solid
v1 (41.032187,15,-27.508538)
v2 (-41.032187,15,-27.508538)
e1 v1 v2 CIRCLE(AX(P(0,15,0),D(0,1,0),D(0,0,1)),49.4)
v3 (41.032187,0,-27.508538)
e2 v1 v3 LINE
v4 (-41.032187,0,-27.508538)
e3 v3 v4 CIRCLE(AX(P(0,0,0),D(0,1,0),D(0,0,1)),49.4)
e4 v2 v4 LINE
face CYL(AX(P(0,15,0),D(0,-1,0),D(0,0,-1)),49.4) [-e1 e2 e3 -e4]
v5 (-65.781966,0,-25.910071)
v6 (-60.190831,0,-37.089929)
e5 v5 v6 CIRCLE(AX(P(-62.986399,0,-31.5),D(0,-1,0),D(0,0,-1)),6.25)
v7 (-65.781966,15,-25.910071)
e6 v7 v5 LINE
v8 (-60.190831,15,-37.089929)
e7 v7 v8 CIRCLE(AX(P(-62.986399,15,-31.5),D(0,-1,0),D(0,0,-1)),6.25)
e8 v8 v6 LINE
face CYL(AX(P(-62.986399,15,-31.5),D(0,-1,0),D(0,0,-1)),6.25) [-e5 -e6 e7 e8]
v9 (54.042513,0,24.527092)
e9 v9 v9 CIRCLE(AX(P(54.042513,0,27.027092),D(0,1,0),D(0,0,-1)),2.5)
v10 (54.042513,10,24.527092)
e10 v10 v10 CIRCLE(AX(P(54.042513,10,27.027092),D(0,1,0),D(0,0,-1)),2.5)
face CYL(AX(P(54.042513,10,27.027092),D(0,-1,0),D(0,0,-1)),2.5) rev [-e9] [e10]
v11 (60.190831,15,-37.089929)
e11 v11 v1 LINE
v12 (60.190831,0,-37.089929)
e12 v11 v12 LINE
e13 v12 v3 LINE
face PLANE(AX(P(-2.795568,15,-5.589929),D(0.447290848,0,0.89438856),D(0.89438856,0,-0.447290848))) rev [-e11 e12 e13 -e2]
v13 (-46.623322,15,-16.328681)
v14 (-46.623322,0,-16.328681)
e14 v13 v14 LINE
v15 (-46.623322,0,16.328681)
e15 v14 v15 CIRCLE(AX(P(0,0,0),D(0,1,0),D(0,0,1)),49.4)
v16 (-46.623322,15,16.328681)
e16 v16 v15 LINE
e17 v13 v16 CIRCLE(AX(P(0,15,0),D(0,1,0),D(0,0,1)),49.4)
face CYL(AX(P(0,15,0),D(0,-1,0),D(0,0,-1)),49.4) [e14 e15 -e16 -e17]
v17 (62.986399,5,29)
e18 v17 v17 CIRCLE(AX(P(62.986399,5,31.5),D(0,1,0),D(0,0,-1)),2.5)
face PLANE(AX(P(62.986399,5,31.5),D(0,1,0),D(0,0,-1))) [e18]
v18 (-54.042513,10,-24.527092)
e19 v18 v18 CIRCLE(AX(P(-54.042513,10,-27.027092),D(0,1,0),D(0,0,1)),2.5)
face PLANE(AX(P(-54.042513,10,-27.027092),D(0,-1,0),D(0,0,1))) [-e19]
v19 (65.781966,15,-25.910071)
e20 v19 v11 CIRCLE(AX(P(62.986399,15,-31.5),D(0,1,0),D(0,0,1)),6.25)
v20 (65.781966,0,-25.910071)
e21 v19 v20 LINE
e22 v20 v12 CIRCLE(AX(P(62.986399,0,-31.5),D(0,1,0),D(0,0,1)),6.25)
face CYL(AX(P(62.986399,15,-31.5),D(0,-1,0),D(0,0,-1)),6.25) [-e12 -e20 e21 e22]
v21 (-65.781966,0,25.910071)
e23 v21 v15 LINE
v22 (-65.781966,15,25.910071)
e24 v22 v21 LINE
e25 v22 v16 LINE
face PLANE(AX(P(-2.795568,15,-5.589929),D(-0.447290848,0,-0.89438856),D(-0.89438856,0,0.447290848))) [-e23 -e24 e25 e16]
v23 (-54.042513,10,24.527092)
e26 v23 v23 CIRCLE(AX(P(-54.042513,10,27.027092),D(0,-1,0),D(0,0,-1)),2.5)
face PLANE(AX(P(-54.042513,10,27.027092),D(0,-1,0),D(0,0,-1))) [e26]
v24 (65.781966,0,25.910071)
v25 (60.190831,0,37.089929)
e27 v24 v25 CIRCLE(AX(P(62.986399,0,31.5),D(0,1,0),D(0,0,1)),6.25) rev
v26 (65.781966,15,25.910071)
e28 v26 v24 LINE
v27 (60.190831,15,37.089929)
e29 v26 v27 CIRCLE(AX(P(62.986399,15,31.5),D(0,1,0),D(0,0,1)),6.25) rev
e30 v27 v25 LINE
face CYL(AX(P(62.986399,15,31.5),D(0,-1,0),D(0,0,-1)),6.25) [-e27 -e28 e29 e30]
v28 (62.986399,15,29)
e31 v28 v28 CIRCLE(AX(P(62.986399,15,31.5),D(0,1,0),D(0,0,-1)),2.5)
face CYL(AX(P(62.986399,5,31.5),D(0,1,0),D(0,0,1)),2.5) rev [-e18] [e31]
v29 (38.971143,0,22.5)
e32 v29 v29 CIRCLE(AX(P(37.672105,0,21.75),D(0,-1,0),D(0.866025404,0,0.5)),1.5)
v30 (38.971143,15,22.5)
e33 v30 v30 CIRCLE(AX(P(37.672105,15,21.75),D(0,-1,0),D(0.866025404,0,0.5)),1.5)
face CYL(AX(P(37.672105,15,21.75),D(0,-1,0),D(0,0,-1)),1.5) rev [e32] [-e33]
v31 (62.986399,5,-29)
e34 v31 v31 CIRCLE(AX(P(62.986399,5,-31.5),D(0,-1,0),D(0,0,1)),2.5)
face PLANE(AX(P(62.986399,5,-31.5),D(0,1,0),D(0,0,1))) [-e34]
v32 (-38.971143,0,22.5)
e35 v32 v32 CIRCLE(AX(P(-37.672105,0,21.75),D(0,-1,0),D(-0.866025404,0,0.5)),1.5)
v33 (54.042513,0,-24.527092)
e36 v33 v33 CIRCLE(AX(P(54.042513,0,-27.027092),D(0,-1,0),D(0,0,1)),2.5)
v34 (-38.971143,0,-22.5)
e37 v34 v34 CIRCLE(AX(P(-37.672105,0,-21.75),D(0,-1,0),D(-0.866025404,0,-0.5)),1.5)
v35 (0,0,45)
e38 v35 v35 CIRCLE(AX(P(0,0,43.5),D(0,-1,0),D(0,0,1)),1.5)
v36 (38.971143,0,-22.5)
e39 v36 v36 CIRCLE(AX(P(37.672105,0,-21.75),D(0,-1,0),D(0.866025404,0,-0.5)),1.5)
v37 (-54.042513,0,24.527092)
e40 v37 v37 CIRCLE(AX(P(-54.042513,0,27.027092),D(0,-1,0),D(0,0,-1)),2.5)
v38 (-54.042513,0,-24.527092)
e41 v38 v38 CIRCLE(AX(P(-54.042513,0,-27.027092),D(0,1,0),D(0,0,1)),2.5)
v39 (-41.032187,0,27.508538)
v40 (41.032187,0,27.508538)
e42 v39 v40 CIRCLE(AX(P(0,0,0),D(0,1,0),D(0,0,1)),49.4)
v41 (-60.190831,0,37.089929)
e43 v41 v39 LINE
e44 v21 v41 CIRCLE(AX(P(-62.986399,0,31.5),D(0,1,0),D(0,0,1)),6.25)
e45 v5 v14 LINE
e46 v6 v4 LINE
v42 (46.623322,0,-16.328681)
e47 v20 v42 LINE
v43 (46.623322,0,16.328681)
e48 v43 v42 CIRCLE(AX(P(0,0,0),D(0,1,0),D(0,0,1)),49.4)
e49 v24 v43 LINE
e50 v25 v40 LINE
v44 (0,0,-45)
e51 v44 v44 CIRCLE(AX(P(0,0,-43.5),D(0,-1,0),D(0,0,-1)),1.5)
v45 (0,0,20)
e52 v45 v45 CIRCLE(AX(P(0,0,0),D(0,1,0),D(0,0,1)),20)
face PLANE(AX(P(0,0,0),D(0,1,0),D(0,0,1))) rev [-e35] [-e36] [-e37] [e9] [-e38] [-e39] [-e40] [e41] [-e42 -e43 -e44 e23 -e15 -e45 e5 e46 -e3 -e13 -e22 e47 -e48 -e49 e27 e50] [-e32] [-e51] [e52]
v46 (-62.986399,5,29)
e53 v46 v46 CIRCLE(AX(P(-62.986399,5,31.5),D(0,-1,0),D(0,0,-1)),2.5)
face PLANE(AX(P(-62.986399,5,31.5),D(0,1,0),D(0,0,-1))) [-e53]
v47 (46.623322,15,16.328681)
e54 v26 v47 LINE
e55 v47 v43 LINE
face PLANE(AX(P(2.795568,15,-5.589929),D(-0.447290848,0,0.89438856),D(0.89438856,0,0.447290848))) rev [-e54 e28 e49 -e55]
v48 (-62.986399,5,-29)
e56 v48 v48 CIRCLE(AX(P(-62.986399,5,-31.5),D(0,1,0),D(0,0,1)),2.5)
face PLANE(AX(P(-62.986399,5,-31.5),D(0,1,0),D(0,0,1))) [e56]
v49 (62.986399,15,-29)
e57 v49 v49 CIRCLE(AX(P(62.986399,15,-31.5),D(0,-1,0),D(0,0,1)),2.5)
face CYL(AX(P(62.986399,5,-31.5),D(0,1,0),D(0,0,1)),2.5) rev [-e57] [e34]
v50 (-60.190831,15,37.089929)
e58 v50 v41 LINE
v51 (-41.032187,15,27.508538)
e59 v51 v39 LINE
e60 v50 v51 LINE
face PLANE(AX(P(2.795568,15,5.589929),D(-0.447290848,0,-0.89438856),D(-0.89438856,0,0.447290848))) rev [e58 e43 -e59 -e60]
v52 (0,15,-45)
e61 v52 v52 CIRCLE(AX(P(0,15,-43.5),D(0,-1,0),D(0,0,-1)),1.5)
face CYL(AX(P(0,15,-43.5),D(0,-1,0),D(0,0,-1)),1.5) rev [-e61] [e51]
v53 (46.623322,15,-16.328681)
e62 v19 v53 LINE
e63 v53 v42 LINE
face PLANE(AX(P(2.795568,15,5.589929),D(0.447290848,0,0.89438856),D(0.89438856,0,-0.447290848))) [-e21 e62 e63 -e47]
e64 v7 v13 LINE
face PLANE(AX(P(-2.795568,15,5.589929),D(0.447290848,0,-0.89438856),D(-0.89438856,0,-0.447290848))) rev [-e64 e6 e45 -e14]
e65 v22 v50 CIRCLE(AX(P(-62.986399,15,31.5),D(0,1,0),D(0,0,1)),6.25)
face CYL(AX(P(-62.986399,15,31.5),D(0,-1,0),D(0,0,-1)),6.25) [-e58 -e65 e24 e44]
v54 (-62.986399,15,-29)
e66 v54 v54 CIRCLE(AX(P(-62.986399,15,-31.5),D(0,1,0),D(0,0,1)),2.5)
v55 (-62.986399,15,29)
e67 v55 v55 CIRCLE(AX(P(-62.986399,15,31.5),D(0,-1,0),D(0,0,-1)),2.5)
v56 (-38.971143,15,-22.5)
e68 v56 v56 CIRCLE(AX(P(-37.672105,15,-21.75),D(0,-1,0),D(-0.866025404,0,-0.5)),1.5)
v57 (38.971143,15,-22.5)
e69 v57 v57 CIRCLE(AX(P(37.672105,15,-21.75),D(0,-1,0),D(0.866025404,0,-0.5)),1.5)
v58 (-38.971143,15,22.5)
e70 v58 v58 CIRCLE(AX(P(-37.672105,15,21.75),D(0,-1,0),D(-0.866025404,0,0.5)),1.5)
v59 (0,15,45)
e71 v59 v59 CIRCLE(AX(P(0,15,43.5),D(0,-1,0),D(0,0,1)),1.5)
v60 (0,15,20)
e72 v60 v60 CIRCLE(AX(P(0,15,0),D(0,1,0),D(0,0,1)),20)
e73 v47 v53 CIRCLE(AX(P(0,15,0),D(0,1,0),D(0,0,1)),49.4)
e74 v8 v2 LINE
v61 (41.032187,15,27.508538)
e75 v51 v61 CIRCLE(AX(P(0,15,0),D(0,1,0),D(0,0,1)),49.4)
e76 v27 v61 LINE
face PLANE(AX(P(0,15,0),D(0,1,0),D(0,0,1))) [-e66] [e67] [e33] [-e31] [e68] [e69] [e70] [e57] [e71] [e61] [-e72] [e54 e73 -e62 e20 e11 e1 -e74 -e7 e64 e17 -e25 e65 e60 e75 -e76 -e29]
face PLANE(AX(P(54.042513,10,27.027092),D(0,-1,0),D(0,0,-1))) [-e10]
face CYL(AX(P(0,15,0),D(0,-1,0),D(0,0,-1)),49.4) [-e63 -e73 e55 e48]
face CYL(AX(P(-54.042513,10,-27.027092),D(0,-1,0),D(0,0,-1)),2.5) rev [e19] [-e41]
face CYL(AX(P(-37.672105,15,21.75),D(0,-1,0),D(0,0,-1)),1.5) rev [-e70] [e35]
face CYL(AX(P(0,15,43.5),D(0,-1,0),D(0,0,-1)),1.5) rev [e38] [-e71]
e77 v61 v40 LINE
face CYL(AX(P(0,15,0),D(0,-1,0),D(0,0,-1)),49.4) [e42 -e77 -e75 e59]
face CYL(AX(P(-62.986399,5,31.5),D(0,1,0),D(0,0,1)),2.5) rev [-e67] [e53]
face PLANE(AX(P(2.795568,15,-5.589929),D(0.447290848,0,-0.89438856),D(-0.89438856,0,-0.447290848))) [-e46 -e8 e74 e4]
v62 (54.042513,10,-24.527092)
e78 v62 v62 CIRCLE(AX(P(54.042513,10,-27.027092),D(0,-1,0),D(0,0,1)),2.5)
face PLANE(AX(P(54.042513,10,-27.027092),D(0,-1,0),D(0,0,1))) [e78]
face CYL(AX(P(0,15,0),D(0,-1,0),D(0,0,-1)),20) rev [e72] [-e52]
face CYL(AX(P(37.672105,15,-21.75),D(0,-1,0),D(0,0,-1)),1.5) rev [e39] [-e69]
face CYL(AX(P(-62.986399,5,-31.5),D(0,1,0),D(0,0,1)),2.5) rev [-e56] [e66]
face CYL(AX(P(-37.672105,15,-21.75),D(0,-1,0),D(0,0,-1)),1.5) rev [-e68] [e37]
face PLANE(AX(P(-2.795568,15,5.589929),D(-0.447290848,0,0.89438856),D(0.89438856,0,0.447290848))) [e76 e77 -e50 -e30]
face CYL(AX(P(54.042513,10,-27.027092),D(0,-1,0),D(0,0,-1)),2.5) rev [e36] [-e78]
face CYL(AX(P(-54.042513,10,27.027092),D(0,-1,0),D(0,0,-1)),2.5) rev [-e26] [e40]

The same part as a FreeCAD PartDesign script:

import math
import FreeCAD as App
import Part
import Sketcher

V = App.Vector
Q = App.Units.Quantity

doc = App.newDocument("Part")
body = doc.addObject("PartDesign::Body", "Body")

# Sketch on XZ plane
sketch1 = doc.addObject("Sketcher::SketchObject", "Sketch")
body.addObject(sketch1)
sketch1.AttachmentSupport = (doc.XZ_Plane, [""])
sketch1.MapMode = "FlatFace"
sketch1.addGeometry([
    Part.LineSegment(V(47, -16, 0), V(66, -26, 0)),  # 0
    Part.ArcOfCircle(Part.Circle(V(63, -32, 0), V(0, 0, 1), 6), math.radians(-117), math.radians(63)),  # 1
    Part.LineSegment(V(60, -37, 0), V(41, -28, 0)),  # 2
    Part.ArcOfCircle(Part.Circle(V(0, 0, 0), V(0, 0, 1), 49), math.radians(-146), math.radians(-34)),  # 3
    Part.LineSegment(V(-41, -28, 0), V(-60, -37, 0)),  # 4
    Part.ArcOfCircle(Part.Circle(V(-63, -32, 0), V(0, 0, 1), 6), math.radians(117), math.radians(297)),  # 5
    Part.LineSegment(V(-66, -26, 0), V(-47, -16, 0)),  # 6
    Part.ArcOfCircle(Part.Circle(V(0, 0, 0), V(0, 0, 1), 49), math.radians(161), math.radians(199)),  # 7
    Part.LineSegment(V(-47, 16, 0), V(-66, 26, 0)),  # 8
    Part.ArcOfCircle(Part.Circle(V(-63, 32, 0), V(0, 0, 1), 6), math.radians(63), math.radians(243)),  # 9
    Part.LineSegment(V(-60, 37, 0), V(-41, 28, 0)),  # 10
    Part.ArcOfCircle(Part.Circle(V(0, 0, 0), V(0, 0, 1), 49), math.radians(34), math.radians(146)),  # 11
    Part.LineSegment(V(41, 28, 0), V(60, 37, 0)),  # 12
    Part.ArcOfCircle(Part.Circle(V(63, 32, 0), V(0, 0, 1), 6), math.radians(-63), math.radians(117)),  # 13
    Part.LineSegment(V(66, 26, 0), V(47, 16, 0)),  # 14
    Part.ArcOfCircle(Part.Circle(V(0, 0, 0), V(0, 0, 1), 49), math.radians(-19), math.radians(19)),  # 15
    Part.Circle(V(0, 0, 0), V(0, 0, 1), 20),  # 16
], False)
sketch1.addConstraint([
    Sketcher.Constraint("Tangent", 0, 2, 1, 2),
    Sketcher.Constraint("Tangent", 1, 1, 2, 1),
    Sketcher.Constraint("Coincident", 2, 2, 3, 2),
    Sketcher.Constraint("Coincident", 3, 1, 4, 1),
    Sketcher.Constraint("Tangent", 4, 2, 5, 2),
    Sketcher.Constraint("Tangent", 5, 1, 6, 1),
    Sketcher.Constraint("Coincident", 6, 2, 7, 2),
    Sketcher.Constraint("Coincident", 7, 1, 8, 1),
    Sketcher.Constraint("Tangent", 8, 2, 9, 2),
    Sketcher.Constraint("Tangent", 9, 1, 10, 1),
    Sketcher.Constraint("Coincident", 10, 2, 11, 2),
    Sketcher.Constraint("Coincident", 11, 1, 12, 1),
    Sketcher.Constraint("Tangent", 12, 2, 13, 2),
    Sketcher.Constraint("Tangent", 13, 1, 14, 1),
    Sketcher.Constraint("Coincident", 14, 2, 15, 2),
    Sketcher.Constraint("Coincident", 15, 1, 0, 1),
    Sketcher.Constraint("Coincident", 3, 3, -1, 1),
    Sketcher.Constraint("Coincident", 7, 3, -1, 1),
    Sketcher.Constraint("Coincident", 11, 3, -1, 1),
    Sketcher.Constraint("Coincident", 15, 3, -1, 1),
    Sketcher.Constraint("Coincident", 16, 3, -1, 1),
    Sketcher.Constraint("Equal", 1, 5),
    Sketcher.Constraint("Equal", 3, 7),
    Sketcher.Constraint("Equal", 5, 9),
    Sketcher.Constraint("Equal", 7, 11),
    Sketcher.Constraint("Equal", 9, 13),
    Sketcher.Constraint("Equal", 11, 15),
    Sketcher.Constraint("Symmetric", 1, 3, 9, 3, -1, 1),
    Sketcher.Constraint("Symmetric", 5, 3, 13, 3, -1, 1),
    Sketcher.Constraint("Symmetric", 1, 3, 5, 3, -2),
    Sketcher.Constraint("Parallel", 0, 2),
    Sketcher.Constraint("Parallel", 4, 6),
    Sketcher.Constraint("Parallel", 2, 8),
    Sketcher.Constraint("Parallel", 8, 10),
    Sketcher.Constraint("Parallel", 6, 12),
    Sketcher.Constraint("Parallel", 12, 14),
    Sketcher.Constraint("Horizontal", 2, 2, 3, 1),
    Sketcher.Constraint("Equal", 0, 2),
    Sketcher.Constraint("Diameter", 16, 40.0),
    Sketcher.Constraint("Radius", 3, 49.4),
    Sketcher.Constraint("Radius", 1, 6.25),
    Sketcher.Constraint("DistanceY", 5, 3, 9, 3, 63.0),
    Sketcher.Constraint("Angle", 0, Q("-26.57 deg")),
])
pad1 = doc.addObject("PartDesign::Pad", "Pad")
body.addObject(pad1)
pad1.Profile = sketch1
pad1.Length = 15
pad1.Reversed = True

# Sketch on XZ plane
sketch2 = doc.addObject("Sketcher::SketchObject", "Sketch001")
body.addObject(sketch2)
sketch2.AttachmentSupport = (doc.XZ_Plane, [""])
sketch2.MapMode = "FlatFace"
sketch2.AttachmentOffset = App.Placement(V(0, 0, -15), App.Rotation())
sketch2.addGeometry(Part.Circle(V(-63, -31.5, 0), V(0, 0, 1), 2.5), False)
sketch2.addConstraint([
    Sketcher.Constraint("Diameter", 0, 5.0),
    Sketcher.Constraint("DistanceY", 0, 3, -1, 1, 31.5),
    Sketcher.Constraint("DistanceX", 0, 3, -1, 1, 62.986399),
])
pocket1 = doc.addObject("PartDesign::Pocket", "Pocket")
body.addObject(pocket1)
pocket1.Profile = sketch2
pocket1.Length = 10
pocket1.Reversed = True
doc.recompute()

mirrored = doc.addObject("PartDesign::Mirrored", "Mirrored")
body.addObject(mirrored)
mirrored.Originals = [pocket1]
mirrored.MirrorPlane = (doc.XY_Plane, [""])
body.Tip = mirrored
doc.recompute()

mirrored2 = doc.addObject("PartDesign::Mirrored", "Mirrored001")
body.addObject(mirrored2)
mirrored2.Originals = [pocket1]
mirrored2.MirrorPlane = (doc.YZ_Plane, [""])
body.Tip = mirrored2

# Sketch on XZ plane
sketch3 = doc.addObject("Sketcher::SketchObject", "Sketch002")
body.addObject(sketch3)
sketch3.AttachmentSupport = (doc.XZ_Plane, [""])
sketch3.MapMode = "FlatFace"
sketch3.AttachmentOffset = App.Placement(V(0, 0, -15), App.Rotation())
sketch3.addGeometry(Part.Circle(V(63, 31.5, 0), V(0, 0, 1), 2.5), False)
sketch3.addConstraint([
    Sketcher.Constraint("Diameter", 0, 5.0),
    Sketcher.Constraint("DistanceY", -1, 1, 0, 3, 31.5),
    Sketcher.Constraint("DistanceX", -1, 1, 0, 3, 62.986399),
])
pocket2 = doc.addObject("PartDesign::Pocket", "Pocket001")
body.addObject(pocket2)
pocket2.Profile = sketch3
pocket2.Length = 10
pocket2.Reversed = True

# Sketch on XZ plane
sketch4 = doc.addObject("Sketcher::SketchObject", "Sketch003")
body.addObject(sketch4)
sketch4.AttachmentSupport = (doc.XZ_Plane, [""])
sketch4.MapMode = "FlatFace"
sketch4.addGeometry(Part.Circle(V(-54, 27, 0), V(0, 0, 1), 2.5), False)
sketch4.addConstraint([
    Sketcher.Constraint("Diameter", 0, 5.0),
    Sketcher.Constraint("DistanceY", -1, 1, 0, 3, 27.027092),
    Sketcher.Constraint("DistanceX", 0, 3, -1, 1, 54.042513),
])
pocket3 = doc.addObject("PartDesign::Pocket", "Pocket002")
body.addObject(pocket3)
pocket3.Profile = sketch4
pocket3.Length = 10
doc.recompute()

mirrored3 = doc.addObject("PartDesign::Mirrored", "Mirrored002")
body.addObject(mirrored3)
mirrored3.Originals = [pocket3]
mirrored3.MirrorPlane = (doc.YZ_Plane, [""])
body.Tip = mirrored3
doc.recompute()

mirrored4 = doc.addObject("PartDesign::Mirrored", "Mirrored003")
body.addObject(mirrored4)
mirrored4.Originals = [pocket3]
mirrored4.MirrorPlane = (doc.XY_Plane, [""])
body.Tip = mirrored4

# Sketch on XZ plane
sketch5 = doc.addObject("Sketcher::SketchObject", "Sketch004")
body.addObject(sketch5)
sketch5.AttachmentSupport = (doc.XZ_Plane, [""])
sketch5.MapMode = "FlatFace"
sketch5.addGeometry(Part.Circle(V(54, -27, 0), V(0, 0, 1), 2.5), False)
sketch5.addConstraint([
    Sketcher.Constraint("Diameter", 0, 5.0),
    Sketcher.Constraint("DistanceY", 0, 3, -1, 1, 27.027092),
    Sketcher.Constraint("DistanceX", -1, 1, 0, 3, 54.042513),
])
pocket4 = doc.addObject("PartDesign::Pocket", "Pocket003")
body.addObject(pocket4)
pocket4.Profile = sketch5
pocket4.Length = 10

# Sketch on XZ plane
sketch6 = doc.addObject("Sketcher::SketchObject", "Sketch005")
body.addObject(sketch6)
sketch6.AttachmentSupport = (doc.XZ_Plane, [""])
sketch6.MapMode = "FlatFace"
sketch6.addGeometry(Part.Circle(V(0, -43.5, 0), V(0, 0, 1), 1.5), False)
sketch6.addConstraint([
    Sketcher.Constraint("PointOnObject", 0, 3, -2),
    Sketcher.Constraint("Diameter", 0, 3.0),
    Sketcher.Constraint("DistanceY", 0, 3, -1, 1, 43.5),
])
pocket5 = doc.addObject("PartDesign::Pocket", "Pocket004")
body.addObject(pocket5)
pocket5.Profile = sketch6
pocket5.Type = "ThroughAll"
doc.recompute()

polarpattern = doc.addObject("PartDesign::PolarPattern", "PolarPattern")
body.addObject(polarpattern)
polarpattern.Originals = [pocket5]
polarpattern.Axis = (doc.Y_Axis, [""])
polarpattern.Angle = 360
polarpattern.Occurrences = 6
body.Tip = polarpattern

doc.recompute()
